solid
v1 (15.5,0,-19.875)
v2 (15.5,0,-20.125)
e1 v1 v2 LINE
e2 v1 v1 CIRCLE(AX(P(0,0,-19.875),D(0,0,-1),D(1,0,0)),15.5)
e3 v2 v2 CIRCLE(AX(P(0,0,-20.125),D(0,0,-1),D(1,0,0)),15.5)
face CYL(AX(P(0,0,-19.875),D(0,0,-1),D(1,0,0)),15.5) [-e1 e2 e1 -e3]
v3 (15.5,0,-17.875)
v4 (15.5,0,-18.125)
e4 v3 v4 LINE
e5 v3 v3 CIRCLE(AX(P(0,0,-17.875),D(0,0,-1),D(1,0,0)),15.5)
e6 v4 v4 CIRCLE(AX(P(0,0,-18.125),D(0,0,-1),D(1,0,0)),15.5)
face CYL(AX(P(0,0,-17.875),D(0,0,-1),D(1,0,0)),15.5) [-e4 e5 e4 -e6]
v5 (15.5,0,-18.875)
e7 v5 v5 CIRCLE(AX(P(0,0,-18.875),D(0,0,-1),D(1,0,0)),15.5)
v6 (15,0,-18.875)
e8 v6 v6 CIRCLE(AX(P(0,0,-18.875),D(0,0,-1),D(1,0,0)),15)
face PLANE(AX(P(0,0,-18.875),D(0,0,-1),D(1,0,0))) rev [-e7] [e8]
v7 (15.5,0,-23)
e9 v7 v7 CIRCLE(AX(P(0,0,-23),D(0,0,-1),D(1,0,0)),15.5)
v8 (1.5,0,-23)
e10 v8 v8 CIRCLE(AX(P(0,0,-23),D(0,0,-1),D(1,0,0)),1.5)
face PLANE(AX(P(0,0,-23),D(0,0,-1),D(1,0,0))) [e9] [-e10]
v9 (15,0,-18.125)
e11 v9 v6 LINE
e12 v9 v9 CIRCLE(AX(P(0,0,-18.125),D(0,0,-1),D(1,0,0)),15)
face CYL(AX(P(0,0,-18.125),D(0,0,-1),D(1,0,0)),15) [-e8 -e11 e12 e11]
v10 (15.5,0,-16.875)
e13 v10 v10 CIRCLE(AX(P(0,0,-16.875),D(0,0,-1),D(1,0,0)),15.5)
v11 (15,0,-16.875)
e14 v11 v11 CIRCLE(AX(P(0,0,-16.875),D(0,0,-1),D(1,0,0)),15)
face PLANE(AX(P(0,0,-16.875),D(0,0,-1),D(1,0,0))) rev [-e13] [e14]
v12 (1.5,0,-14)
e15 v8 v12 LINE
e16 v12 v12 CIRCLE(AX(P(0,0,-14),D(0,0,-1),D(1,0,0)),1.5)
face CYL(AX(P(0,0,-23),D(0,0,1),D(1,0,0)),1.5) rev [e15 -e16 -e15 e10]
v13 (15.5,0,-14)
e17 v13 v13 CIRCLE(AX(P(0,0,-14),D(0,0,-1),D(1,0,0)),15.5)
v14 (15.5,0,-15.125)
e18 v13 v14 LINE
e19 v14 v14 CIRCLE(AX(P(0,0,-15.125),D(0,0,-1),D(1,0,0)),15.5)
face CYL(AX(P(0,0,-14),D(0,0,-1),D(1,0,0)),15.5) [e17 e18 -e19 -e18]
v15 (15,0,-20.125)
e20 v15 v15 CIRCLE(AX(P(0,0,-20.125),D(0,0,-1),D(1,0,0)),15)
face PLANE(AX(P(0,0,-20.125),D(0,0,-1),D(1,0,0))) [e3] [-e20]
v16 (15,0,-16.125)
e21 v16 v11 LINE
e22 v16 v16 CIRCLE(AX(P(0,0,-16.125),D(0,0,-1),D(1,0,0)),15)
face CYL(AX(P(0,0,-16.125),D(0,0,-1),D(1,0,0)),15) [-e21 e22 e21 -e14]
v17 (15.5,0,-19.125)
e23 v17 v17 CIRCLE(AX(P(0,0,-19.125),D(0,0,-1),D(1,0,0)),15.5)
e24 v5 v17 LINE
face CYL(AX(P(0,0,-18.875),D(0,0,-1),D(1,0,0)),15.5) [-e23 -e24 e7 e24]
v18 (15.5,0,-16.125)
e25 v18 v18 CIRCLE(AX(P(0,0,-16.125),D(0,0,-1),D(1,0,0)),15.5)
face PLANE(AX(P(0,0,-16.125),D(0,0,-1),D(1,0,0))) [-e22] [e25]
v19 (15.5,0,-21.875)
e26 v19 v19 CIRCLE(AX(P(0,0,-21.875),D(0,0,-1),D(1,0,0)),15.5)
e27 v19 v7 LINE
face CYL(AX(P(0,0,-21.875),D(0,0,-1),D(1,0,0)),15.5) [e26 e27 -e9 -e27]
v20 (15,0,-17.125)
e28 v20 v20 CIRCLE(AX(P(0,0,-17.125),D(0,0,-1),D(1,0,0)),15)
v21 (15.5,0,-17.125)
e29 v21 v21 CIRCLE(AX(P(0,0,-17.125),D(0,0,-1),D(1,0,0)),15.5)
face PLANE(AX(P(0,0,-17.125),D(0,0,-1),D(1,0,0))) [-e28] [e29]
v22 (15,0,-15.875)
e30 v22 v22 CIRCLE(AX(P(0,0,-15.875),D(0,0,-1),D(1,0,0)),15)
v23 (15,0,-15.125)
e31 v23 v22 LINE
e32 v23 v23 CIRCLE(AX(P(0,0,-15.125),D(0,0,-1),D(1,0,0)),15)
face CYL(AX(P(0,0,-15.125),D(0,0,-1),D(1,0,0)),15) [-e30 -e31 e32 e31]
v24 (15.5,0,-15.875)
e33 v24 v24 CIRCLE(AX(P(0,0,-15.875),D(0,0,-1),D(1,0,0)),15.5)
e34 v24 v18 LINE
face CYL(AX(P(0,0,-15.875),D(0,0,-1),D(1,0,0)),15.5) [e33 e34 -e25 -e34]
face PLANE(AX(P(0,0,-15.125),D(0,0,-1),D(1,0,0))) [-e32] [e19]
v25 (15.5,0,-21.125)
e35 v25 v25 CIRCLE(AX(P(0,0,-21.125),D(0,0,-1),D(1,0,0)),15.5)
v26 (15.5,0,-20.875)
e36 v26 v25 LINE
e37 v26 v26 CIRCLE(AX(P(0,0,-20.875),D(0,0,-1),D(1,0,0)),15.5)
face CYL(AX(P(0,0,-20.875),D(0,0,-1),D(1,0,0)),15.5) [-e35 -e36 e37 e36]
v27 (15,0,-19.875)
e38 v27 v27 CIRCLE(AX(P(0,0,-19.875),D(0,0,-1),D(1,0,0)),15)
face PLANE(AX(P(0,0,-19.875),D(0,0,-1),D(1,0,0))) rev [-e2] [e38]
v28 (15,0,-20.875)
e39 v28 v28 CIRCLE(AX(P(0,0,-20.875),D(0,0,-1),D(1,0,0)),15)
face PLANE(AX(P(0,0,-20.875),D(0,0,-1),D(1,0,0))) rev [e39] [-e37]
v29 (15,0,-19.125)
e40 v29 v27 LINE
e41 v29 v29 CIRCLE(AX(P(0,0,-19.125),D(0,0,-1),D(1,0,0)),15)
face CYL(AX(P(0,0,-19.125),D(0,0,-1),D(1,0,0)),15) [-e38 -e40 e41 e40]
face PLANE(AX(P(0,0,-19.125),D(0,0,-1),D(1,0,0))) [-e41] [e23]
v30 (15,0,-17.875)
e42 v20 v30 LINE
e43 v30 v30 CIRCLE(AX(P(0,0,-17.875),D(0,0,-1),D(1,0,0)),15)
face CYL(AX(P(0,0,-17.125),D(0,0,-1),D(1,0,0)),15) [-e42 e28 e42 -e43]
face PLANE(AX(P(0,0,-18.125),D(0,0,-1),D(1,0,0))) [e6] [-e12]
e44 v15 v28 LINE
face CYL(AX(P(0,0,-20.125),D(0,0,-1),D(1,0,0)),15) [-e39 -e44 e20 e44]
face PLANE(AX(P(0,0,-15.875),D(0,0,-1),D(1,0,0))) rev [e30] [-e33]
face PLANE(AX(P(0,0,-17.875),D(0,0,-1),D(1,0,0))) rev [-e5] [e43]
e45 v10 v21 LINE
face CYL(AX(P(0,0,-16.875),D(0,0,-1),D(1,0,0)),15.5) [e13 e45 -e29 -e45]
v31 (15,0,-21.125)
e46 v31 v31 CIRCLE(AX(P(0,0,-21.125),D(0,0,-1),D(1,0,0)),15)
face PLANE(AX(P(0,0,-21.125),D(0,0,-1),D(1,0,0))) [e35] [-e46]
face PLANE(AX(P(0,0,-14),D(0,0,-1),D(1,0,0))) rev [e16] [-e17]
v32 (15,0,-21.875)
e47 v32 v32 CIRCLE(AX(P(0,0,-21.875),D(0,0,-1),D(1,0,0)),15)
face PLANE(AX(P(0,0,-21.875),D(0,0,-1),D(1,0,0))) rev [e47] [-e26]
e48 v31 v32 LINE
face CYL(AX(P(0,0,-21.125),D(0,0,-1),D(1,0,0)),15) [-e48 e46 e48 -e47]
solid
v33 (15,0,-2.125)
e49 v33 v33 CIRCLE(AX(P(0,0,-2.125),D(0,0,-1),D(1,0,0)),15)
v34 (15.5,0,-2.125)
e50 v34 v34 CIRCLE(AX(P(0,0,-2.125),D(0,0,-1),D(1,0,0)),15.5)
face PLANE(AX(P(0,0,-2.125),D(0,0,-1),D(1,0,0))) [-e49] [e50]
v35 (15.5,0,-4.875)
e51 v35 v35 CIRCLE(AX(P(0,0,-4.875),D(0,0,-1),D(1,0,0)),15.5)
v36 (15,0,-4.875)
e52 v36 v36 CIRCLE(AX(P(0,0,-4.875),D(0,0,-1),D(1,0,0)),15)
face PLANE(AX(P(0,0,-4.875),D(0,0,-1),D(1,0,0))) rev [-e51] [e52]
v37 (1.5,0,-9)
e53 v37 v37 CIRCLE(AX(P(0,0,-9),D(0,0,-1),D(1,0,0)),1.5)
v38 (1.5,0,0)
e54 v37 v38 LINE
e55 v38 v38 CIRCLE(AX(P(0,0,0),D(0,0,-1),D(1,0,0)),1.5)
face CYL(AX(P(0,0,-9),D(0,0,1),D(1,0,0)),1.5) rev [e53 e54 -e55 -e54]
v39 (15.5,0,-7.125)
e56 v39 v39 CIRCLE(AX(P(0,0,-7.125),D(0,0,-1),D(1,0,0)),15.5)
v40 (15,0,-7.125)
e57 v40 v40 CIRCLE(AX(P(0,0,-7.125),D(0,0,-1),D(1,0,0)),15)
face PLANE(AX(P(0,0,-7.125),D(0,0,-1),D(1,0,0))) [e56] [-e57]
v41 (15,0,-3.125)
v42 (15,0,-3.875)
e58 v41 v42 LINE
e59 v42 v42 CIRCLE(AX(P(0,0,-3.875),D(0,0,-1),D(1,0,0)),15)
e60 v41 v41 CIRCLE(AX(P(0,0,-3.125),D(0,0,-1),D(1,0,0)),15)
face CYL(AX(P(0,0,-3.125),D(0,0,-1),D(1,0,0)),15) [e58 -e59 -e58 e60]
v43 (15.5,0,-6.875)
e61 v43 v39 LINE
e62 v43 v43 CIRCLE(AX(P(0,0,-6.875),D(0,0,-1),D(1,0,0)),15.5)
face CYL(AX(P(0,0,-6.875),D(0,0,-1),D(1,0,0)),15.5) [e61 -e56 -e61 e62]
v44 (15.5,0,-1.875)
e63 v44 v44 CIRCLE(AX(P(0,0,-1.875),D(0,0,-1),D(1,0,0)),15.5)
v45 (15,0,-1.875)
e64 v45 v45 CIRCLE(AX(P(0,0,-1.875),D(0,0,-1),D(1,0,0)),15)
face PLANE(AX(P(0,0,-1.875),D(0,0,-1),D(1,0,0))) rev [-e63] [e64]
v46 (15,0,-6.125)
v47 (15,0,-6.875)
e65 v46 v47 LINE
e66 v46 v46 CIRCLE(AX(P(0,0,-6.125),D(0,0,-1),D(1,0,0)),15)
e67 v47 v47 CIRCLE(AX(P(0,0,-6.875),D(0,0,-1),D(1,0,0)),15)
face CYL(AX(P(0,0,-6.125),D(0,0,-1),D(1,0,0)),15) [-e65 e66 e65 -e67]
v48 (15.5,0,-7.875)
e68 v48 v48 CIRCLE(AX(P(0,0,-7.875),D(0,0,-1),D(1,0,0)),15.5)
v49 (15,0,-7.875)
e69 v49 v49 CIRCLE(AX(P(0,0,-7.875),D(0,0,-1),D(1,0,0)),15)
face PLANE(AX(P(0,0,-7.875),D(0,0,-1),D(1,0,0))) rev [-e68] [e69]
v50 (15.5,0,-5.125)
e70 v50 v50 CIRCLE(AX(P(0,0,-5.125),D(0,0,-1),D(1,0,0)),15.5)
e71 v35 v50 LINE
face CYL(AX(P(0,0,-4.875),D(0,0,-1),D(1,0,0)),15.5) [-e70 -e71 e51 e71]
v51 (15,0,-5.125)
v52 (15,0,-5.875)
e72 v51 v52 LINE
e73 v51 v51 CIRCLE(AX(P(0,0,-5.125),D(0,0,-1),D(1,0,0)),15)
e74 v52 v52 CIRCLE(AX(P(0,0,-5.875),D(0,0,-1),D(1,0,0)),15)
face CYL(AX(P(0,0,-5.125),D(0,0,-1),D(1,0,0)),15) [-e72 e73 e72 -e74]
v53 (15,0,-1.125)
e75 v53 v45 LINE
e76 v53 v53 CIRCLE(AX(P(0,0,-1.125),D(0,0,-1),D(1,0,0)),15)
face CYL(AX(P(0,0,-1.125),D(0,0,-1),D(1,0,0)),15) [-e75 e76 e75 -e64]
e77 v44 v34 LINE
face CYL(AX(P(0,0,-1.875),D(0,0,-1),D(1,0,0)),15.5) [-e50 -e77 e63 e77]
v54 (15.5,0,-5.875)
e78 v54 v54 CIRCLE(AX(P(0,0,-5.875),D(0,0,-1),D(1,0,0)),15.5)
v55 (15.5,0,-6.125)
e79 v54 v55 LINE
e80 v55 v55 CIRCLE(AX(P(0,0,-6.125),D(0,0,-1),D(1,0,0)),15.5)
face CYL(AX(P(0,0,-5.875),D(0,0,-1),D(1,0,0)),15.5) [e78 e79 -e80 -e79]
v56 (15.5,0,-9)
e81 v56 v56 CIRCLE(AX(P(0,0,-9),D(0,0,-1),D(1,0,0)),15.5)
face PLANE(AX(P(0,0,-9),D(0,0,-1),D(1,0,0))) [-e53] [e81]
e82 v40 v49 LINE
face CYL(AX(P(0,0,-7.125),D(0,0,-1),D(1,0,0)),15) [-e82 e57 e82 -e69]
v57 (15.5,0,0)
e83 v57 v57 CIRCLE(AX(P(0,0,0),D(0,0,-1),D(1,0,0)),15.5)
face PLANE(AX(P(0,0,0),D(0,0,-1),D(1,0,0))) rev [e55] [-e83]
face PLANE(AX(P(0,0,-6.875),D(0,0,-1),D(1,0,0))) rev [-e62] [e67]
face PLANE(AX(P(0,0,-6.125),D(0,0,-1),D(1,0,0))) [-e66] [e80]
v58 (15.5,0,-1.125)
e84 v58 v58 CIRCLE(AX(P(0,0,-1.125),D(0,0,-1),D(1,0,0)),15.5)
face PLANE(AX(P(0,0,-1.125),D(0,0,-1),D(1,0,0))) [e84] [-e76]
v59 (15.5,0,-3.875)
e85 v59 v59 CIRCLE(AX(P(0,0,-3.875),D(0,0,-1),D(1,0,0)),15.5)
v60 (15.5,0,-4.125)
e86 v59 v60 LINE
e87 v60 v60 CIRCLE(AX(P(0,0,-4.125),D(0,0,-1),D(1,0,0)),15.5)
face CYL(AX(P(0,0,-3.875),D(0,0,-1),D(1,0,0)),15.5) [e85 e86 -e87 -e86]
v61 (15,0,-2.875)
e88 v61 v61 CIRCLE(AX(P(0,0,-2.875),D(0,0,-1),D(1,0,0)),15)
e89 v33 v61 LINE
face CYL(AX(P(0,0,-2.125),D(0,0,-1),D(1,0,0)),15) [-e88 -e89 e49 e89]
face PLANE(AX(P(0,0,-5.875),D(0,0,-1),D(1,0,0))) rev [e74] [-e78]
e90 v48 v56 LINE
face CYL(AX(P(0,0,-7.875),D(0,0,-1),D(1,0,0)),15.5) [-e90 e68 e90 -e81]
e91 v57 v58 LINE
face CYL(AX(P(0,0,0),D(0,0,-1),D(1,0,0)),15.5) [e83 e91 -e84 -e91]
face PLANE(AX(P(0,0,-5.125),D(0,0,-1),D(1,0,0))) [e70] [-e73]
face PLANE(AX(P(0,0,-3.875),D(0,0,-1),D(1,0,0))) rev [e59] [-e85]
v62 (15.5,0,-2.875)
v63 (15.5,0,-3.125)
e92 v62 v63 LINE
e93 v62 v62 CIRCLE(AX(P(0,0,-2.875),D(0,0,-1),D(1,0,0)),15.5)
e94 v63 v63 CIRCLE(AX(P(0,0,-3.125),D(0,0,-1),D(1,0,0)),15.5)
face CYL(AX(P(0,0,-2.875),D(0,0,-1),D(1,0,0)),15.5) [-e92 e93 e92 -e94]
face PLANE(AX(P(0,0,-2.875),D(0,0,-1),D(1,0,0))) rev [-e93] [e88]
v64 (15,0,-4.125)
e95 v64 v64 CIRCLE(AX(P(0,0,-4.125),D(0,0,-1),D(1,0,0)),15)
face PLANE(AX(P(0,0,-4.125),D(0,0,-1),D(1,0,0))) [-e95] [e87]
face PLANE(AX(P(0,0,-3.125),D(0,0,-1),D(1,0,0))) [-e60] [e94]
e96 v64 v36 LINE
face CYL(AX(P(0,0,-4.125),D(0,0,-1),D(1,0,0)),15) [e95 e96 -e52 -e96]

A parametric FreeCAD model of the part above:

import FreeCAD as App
import Part
import Sketcher

V = App.Vector


def add_polygon(sketch, points):
    """Adds a closed chain of lines whose ends are joined by coincident constraints."""
    first, n = sketch.GeometryCount, len(points)
    for a, b in zip(points, points[1:] + points[:1]):
        sketch.addGeometry(Part.LineSegment(App.Vector(*a, 0), App.Vector(*b, 0)), False)
    for i in range(n):
        sketch.addConstraint(Sketcher.Constraint("Coincident", first + i, 2, first + (i + 1) % n, 1))

doc = App.newDocument("Part")
body = doc.addObject("PartDesign::Body", "Body")
body.AllowCompound = True

# Sketch on XZ plane
sketch1 = body.newObject("Sketcher::SketchObject", "Sketch")
sketch1.AttachmentSupport = (doc.getObject("XZ_Plane"), [""])
sketch1.MapMode = "FlatFace"
add_polygon(sketch1, [(15.5, -9), (1.5, -9), (1.5, 0), (15.5, 0), (15.5, -1.12), (15, -1.12), (15, -1.88), (15.5, -1.88), (15.5, -2.12), (15, -2.12), (15, -2.88), (15.5, -2.88), (15.5, -3.12), (15, -3.12), (15, -3.88), (15.5, -3.88), (15.5, -4.12), (15, -4.12), (15, -4.88), (15.5, -4.88), (15.5, -5.12), (15, -5.12), (15, -5.88), (15.5, -5.88), (15.5, -6.12), (15, -6.12), (15, -6.88), (15.5, -6.88), (15.5, -7.12), (15, -7.12), (15, -7.88), (15.5, -7.88)])  # lines 0-31
add_polygon(sketch1, [(15, -20.88), (15.5, -20.88), (15.5, -21.12), (15, -21.12), (15, -21.88), (15.5, -21.88), (15.5, -23), (1.5, -23), (1.5, -14), (15.5, -14), (15.5, -15.12), (15, -15.12), (15, -15.88), (15.5, -15.88), (15.5, -16.12), (15, -16.12), (15, -16.88), (15.5, -16.88), (15.5, -17.12), (15, -17.12), (15, -17.88), (15.5, -17.88), (15.5, -18.12), (15, -18.12), (15, -18.88), (15.5, -18.88), (15.5, -19.12), (15, -19.12), (15, -19.88), (15.5, -19.88), (15.5, -20.12), (15, -20.12)])  # lines 32-63
sketch1.addConstraint(Sketcher.Constraint("Horizontal", 0))
sketch1.addConstraint(Sketcher.Constraint("Vertical", 1))
sketch1.addConstraint(Sketcher.Constraint("Horizontal", 2))
sketch1.addConstraint(Sketcher.Constraint("Vertical", 3))
sketch1.addConstraint(Sketcher.Constraint("Horizontal", 4))
sketch1.addConstraint(Sketcher.Constraint("Vertical", 5))
sketch1.addConstraint(Sketcher.Constraint("Horizontal", 6))
sketch1.addConstraint(Sketcher.Constraint("Vertical", 7))
sketch1.addConstraint(Sketcher.Constraint("Horizontal", 8))
sketch1.addConstraint(Sketcher.Constraint("Vertical", 9))
sketch1.addConstraint(Sketcher.Constraint("Horizontal", 10))
sketch1.addConstraint(Sketcher.Constraint("Vertical", 11))
sketch1.addConstraint(Sketcher.Constraint("Horizontal", 12))
sketch1.addConstraint(Sketcher.Constraint("Vertical", 13))
sketch1.addConstraint(Sketcher.Constraint("Horizontal", 14))
sketch1.addConstraint(Sketcher.Constraint("Vertical", 15))
sketch1.addConstraint(Sketcher.Constraint("Horizontal", 16))
sketch1.addConstraint(Sketcher.Constraint("Vertical", 17))
sketch1.addConstraint(Sketcher.Constraint("Horizontal", 18))
sketch1.addConstraint(Sketcher.Constraint("Vertical", 19))
sketch1.addConstraint(Sketcher.Constraint("Horizontal", 20))
sketch1.addConstraint(Sketcher.Constraint("Vertical", 21))
sketch1.addConstraint(Sketcher.Constraint("Horizontal", 22))
sketch1.addConstraint(Sketcher.Constraint("Vertical", 23))
sketch1.addConstraint(Sketcher.Constraint("Horizontal", 24))
sketch1.addConstraint(Sketcher.Constraint("Vertical", 25))
sketch1.addConstraint(Sketcher.Constraint("Horizontal", 26))
sketch1.addConstraint(Sketcher.Constraint("Vertical", 27))
sketch1.addConstraint(Sketcher.Constraint("Horizontal", 28))
sketch1.addConstraint(Sketcher.Constraint("Vertical", 29))
sketch1.addConstraint(Sketcher.Constraint("Horizontal", 30))
sketch1.addConstraint(Sketcher.Constraint("Vertical", 31))
sketch1.addConstraint(Sketcher.Constraint("Horizontal", 32))
sketch1.addConstraint(Sketcher.Constraint("Vertical", 33))
sketch1.addConstraint(Sketcher.Constraint("Horizontal", 34))
sketch1.addConstraint(Sketcher.Constraint("Vertical", 35))
sketch1.addConstraint(Sketcher.Constraint("Horizontal", 36))
sketch1.addConstraint(Sketcher.Constraint("Vertical", 37))
sketch1.addConstraint(Sketcher.Constraint("Horizontal", 38))
sketch1.addConstraint(Sketcher.Constraint("Vertical", 39))
sketch1.addConstraint(Sketcher.Constraint("Horizontal", 40))
sketch1.addConstraint(Sketcher.Constraint("Vertical", 41))
sketch1.addConstraint(Sketcher.Constraint("Horizontal", 42))
sketch1.addConstraint(Sketcher.Constraint("Vertical", 43))
sketch1.addConstraint(Sketcher.Constraint("Horizontal", 44))
sketch1.addConstraint(Sketcher.Constraint("Vertical", 45))
sketch1.addConstraint(Sketcher.Constraint("Horizontal", 46))
sketch1.addConstraint(Sketcher.Constraint("Vertical", 47))
sketch1.addConstraint(Sketcher.Constraint("Horizontal", 48))
sketch1.addConstraint(Sketcher.Constraint("Vertical", 49))
sketch1.addConstraint(Sketcher.Constraint("Horizontal", 50))
sketch1.addConstraint(Sketcher.Constraint("Vertical", 51))
sketch1.addConstraint(Sketcher.Constraint("Horizontal", 52))
sketch1.addConstraint(Sketcher.Constraint("Vertical", 53))
sketch1.addConstraint(Sketcher.Constraint("Horizontal", 54))
sketch1.addConstraint(Sketcher.Constraint("Vertical", 55))
sketch1.addConstraint(Sketcher.Constraint("Horizontal", 56))
sketch1.addConstraint(Sketcher.Constraint("Vertical", 57))
sketch1.addConstraint(Sketcher.Constraint("Horizontal", 58))
sketch1.addConstraint(Sketcher.Constraint("Vertical", 59))
sketch1.addConstraint(Sketcher.Constraint("Horizontal", 60))
sketch1.addConstraint(Sketcher.Constraint("Vertical", 61))
sketch1.addConstraint(Sketcher.Constraint("Horizontal", 62))
sketch1.addConstraint(Sketcher.Constraint("Vertical", 63))
sketch1.addConstraint(Sketcher.Constraint("PointOnObject", 1, 2, -1))
sketch1.addConstraint(Sketcher.Constraint("Vertical", 3, 2, 6, 2))
sketch1.addConstraint(Sketcher.Constraint("Vertical", 5, 2, 8, 2))
sketch1.addConstraint(Sketcher.Constraint("Vertical", 7, 2, 10, 2))
sketch1.addConstraint(Sketcher.Constraint("Vertical", 9, 2, 12, 2))
sketch1.addConstraint(Sketcher.Constraint("Vertical", 11, 2, 14, 2))
sketch1.addConstraint(Sketcher.Constraint("Vertical", 13, 2, 16, 2))
sketch1.addConstraint(Sketcher.Constraint("Vertical", 15, 2, 18, 2))
sketch1.addConstraint(Sketcher.Constraint("Vertical", 17, 2, 20, 2))
sketch1.addConstraint(Sketcher.Constraint("Vertical", 19, 2, 22, 2))
sketch1.addConstraint(Sketcher.Constraint("Vertical", 21, 2, 24, 2))
sketch1.addConstraint(Sketcher.Constraint("Vertical", 23, 2, 26, 2))
sketch1.addConstraint(Sketcher.Constraint("Vertical", 25, 2, 28, 2))
sketch1.addConstraint(Sketcher.Constraint("Vertical", 27, 2, 30, 2))
sketch1.addConstraint(Sketcher.Constraint("Vertical", 31, 2, 32, 2))
sketch1.addConstraint(Sketcher.Constraint("Vertical", 29, 2, 34, 2))
sketch1.addConstraint(Sketcher.Constraint("Vertical", 33, 2, 36, 2))
sketch1.addConstraint(Sketcher.Constraint("Vertical", 1, 2, 38, 2))
sketch1.addConstraint(Sketcher.Constraint("Vertical", 37, 2, 40, 2))
sketch1.addConstraint(Sketcher.Constraint("Vertical", 35, 2, 42, 2))
sketch1.addConstraint(Sketcher.Constraint("Vertical", 41, 2, 44, 2))
sketch1.addConstraint(Sketcher.Constraint("Vertical", 43, 2, 46, 2))
sketch1.addConstraint(Sketcher.Constraint("Vertical", 45, 2, 48, 2))
sketch1.addConstraint(Sketcher.Constraint("Vertical", 47, 2, 50, 2))
sketch1.addConstraint(Sketcher.Constraint("Vertical", 49, 2, 52, 2))
sketch1.addConstraint(Sketcher.Constraint("Vertical", 51, 2, 54, 2))
sketch1.addConstraint(Sketcher.Constraint("Vertical", 53, 2, 56, 2))
sketch1.addConstraint(Sketcher.Constraint("Vertical", 55, 2, 58, 2))
sketch1.addConstraint(Sketcher.Constraint("Vertical", 57, 2, 60, 2))
sketch1.addConstraint(Sketcher.Constraint("Vertical", 59, 2, 62, 2))
sketch1.addConstraint(Sketcher.Constraint("Equal", 5, 9))
sketch1.addConstraint(Sketcher.Constraint("Equal", 7, 11))
sketch1.addConstraint(Sketcher.Constraint("Equal", 9, 13))
sketch1.addConstraint(Sketcher.Constraint("Equal", 11, 15))
sketch1.addConstraint(Sketcher.Constraint("Equal", 13, 17))
sketch1.addConstraint(Sketcher.Constraint("Equal", 15, 19))
sketch1.addConstraint(Sketcher.Constraint("Equal", 17, 21))
sketch1.addConstraint(Sketcher.Constraint("Equal", 19, 23))
sketch1.addConstraint(Sketcher.Constraint("Equal", 21, 25))
sketch1.addConstraint(Sketcher.Constraint("Equal", 23, 27))
sketch1.addConstraint(Sketcher.Constraint("Equal", 25, 29))
sketch1.addConstraint(Sketcher.Constraint("Equal", 3, 31))
sketch1.addConstraint(Sketcher.Constraint("Equal", 27, 33))
sketch1.addConstraint(Sketcher.Constraint("Equal", 29, 35))
sketch1.addConstraint(Sketcher.Constraint("Equal", 31, 37))
sketch1.addConstraint(Sketcher.Constraint("Equal", 1, 39))
sketch1.addConstraint(Sketcher.Constraint("Equal", 37, 41))
sketch1.addConstraint(Sketcher.Constraint("Equal", 35, 43))
sketch1.addConstraint(Sketcher.Constraint("Equal", 33, 45))
sketch1.addConstraint(Sketcher.Constraint("Equal", 43, 47))
sketch1.addConstraint(Sketcher.Constraint("Equal", 45, 49))
sketch1.addConstraint(Sketcher.Constraint("Equal", 47, 51))
sketch1.addConstraint(Sketcher.Constraint("Equal", 49, 53))
sketch1.addConstraint(Sketcher.Constraint("Equal", 51, 55))
sketch1.addConstraint(Sketcher.Constraint("Equal", 53, 57))
sketch1.addConstraint(Sketcher.Constraint("Equal", 55, 59))
sketch1.addConstraint(Sketcher.Constraint("Equal", 57, 61))
sketch1.addConstraint(Sketcher.Constraint("DistanceX", 0, 2, 0, 1, 14.0))
sketch1.addConstraint(Sketcher.Constraint("DistanceY", 1, 1, 1, 2, 9.0))
sketch1.addConstraint(Sketcher.Constraint("DistanceX", 4, 2, 4, 1, 0.5))
sketch1.addConstraint(Sketcher.Constraint("DistanceX", -1, 1, 4, 2, 15.0))
sketch1.addConstraint(Sketcher.Constraint("DistanceY", 37, 2, -1, 1, 23.0))
sketch1.addConstraint(Sketcher.Constraint("DistanceY", 5, 2, 5, 1, 0.75))
sketch1.addConstraint(Sketcher.Constraint("DistanceY", 7, 2, 7, 1, 0.25))
revolution = body.newObject("PartDesign::Revolution", "Revolution")
revolution.Profile = sketch1
revolution.ReferenceAxis = (sketch1, ["V_Axis"])
revolution.Angle = 360

doc.recompute()
